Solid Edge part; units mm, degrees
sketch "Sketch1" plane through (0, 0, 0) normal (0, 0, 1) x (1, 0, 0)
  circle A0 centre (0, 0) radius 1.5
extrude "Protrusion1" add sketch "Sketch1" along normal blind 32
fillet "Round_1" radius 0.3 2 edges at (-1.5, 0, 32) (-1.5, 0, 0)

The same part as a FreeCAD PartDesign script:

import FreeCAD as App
import Part
import Sketcher

V = App.Vector
Q = App.Units.Quantity


def edges_at(feature, points):
    """Names of the edges that pass closest to the given points."""
    edges = feature.Shape.Edges
    near = lambda p: min(range(len(edges)), key=lambda i: edges[i].distToShape(Part.Vertex(*p))[0])
    return sorted({f"Edge{near(p) + 1}" for p in points})

doc = App.newDocument("Part")
body = doc.addObject("PartDesign::Body", "Body")

# Sketch on XY plane
sketch1 = body.newObject("Sketcher::SketchObject", "Sketch")
sketch1.AttachmentSupport = (doc.getObject("XY_Plane"), [""])
sketch1.MapMode = "FlatFace"
sketch1.addGeometry(Part.Circle(V(0, 0, 0), V(0, 0, 1), 1.5), False)
sketch1.addConstraint([
    Sketcher.Constraint("Coincident", 0, 3, -1, 1),
    Sketcher.Constraint("Diameter", 0, Q("3 mm")),
])
pad1 = body.newObject("PartDesign::Pad", "Pad")
pad1.Profile = sketch1
pad1.Length = 32
doc.recompute()

fillet = body.newObject("PartDesign::Fillet", "Fillet")
fillet.Base = (pad1, edges_at(pad1, [(-1.5, 0, 32), (-1.5, 0, 0)]))
fillet.Radius = 0.3

doc.recompute()
